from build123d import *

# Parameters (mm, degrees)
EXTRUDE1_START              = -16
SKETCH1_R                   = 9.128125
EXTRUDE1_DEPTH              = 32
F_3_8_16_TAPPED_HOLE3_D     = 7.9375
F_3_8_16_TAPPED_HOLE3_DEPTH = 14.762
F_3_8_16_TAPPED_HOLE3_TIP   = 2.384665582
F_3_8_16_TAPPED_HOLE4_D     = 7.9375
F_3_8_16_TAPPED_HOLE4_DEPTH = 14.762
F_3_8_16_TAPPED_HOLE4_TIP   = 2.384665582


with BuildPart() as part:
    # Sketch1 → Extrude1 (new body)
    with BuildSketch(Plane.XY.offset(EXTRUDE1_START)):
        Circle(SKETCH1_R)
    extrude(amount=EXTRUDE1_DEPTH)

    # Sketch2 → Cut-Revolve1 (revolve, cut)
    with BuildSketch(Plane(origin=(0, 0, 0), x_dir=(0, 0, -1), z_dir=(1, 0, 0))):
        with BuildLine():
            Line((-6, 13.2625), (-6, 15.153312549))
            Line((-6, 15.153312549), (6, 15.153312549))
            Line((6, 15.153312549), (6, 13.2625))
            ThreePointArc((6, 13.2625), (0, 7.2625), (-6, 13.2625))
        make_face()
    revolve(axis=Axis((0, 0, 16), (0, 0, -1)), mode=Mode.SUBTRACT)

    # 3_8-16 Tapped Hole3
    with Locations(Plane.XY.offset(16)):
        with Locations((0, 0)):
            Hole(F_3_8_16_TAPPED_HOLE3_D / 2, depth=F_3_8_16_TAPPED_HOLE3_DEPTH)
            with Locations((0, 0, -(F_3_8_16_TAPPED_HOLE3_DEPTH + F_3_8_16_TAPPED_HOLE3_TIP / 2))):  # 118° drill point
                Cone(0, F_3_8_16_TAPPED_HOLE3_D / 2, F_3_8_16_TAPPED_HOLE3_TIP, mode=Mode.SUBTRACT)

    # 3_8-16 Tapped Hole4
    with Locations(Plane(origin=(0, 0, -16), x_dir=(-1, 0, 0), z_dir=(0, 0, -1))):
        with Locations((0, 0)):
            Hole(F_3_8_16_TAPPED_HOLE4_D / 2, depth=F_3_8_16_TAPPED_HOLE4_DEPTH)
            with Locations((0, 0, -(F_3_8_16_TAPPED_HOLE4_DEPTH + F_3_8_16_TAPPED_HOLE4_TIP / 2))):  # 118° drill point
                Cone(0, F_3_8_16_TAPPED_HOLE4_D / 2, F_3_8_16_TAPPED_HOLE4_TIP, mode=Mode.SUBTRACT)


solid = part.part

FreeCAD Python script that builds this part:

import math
import FreeCAD as App
import Part
import Sketcher

V = App.Vector

doc = App.newDocument("Part")
body = doc.addObject("PartDesign::Body", "Body")

# Sketch on XY plane
sketch1 = doc.addObject("Sketcher::SketchObject", "Sketch")
body.addObject(sketch1)
sketch1.AttachmentSupport = (doc.XY_Plane, [""])
sketch1.MapMode = "FlatFace"
sketch1.AttachmentOffset = App.Placement(V(0, 0, -16), App.Rotation())
sketch1.addGeometry(Part.Circle(V(0, 0, 0), V(0, 0, 1), 9), False)
sketch1.addConstraint([
    Sketcher.Constraint("Coincident", 0, 3, -1, 1),
    Sketcher.Constraint("Diameter", 0, 18.25625),
])
pad1 = doc.addObject("PartDesign::Pad", "Pad")
body.addObject(pad1)
pad1.Profile = sketch1
pad1.Length = 32

# Sketch on YZ plane
sketch2 = doc.addObject("Sketcher::SketchObject", "Sketch001")
body.addObject(sketch2)
sketch2.AttachmentSupport = (doc.YZ_Plane, [""])
sketch2.MapMode = "FlatFace"
sketch2.addGeometry([
    Part.LineSegment(V(15.2, 6, 0), V(13.3, 6, 0)),
    Part.ArcOfCircle(Part.Circle(V(13.3, 0, 0), V(0, 0, 1), 6), math.radians(90), math.radians(270)),
    Part.LineSegment(V(13.3, -6, 0), V(15.2, -6, 0)),
    Part.LineSegment(V(15.2, -6, 0), V(15.2, 6, 0)),
], False)
sketch2.addConstraint([
    Sketcher.Constraint("Tangent", 0, 2, 1, 1),
    Sketcher.Constraint("Tangent", 1, 2, 2, 1),
    Sketcher.Constraint("Coincident", 2, 2, 3, 1),
    Sketcher.Constraint("Coincident", 3, 2, 0, 1),
    Sketcher.Constraint("Horizontal", 0),
    Sketcher.Constraint("Horizontal", 2),
    Sketcher.Constraint("Vertical", 3),
    Sketcher.Constraint("PointOnObject", 1, 3, -1),
    Sketcher.Constraint("Radius", 1, 6.0),
    Sketcher.Constraint("DistanceX", -1, 1, 1, 3, 13.2625),
    Sketcher.Constraint("DistanceX", 0, 2, 0, 1, 1.890813),
])
groove = doc.addObject("PartDesign::Groove", "Groove")
body.addObject(groove)
groove.Profile = sketch2
groove.ReferenceAxis = (sketch2, ["V_Axis"])
groove.Angle = 360

# Sketch on XY plane
sketch3 = doc.addObject("Sketcher::SketchObject", "Sketch002")
body.addObject(sketch3)
sketch3.AttachmentSupport = (doc.XY_Plane, [""])
sketch3.MapMode = "FlatFace"
sketch3.AttachmentOffset = App.Placement(V(0, 0, 16), App.Rotation())
sketch3.addGeometry(Part.Circle(V(0, 0, 0), V(0, 0, 1), 4), False)
sketch3.addConstraint([
    Sketcher.Constraint("Coincident", 0, 3, -1, 1),
    Sketcher.Constraint("Diameter", 0, 7.9375),
])
doc.recompute()
hole = doc.addObject("PartDesign::Hole", "Hole")
body.addObject(hole)
hole.Profile = sketch3
hole.ThreadType = "None"
hole.Diameter = 7.9375
hole.DepthType = "Dimension"
hole.Depth = 14.762
hole.DrillPoint = "Angled"
hole.DrillPointAngle = 118

# Sketch on XY plane
sketch4 = doc.addObject("Sketcher::SketchObject", "Sketch003")
body.addObject(sketch4)
sketch4.AttachmentSupport = (doc.XY_Plane, [""])
sketch4.MapMode = "FlatFace"
sketch4.AttachmentOffset = App.Placement(V(0, 0, -16), App.Rotation())
sketch4.addGeometry(Part.Circle(V(0, 0, 0), V(0, 0, 1), 4), False)
sketch4.addConstraint([
    Sketcher.Constraint("Coincident", 0, 3, -1, 1),
    Sketcher.Constraint("Diameter", 0, 7.9375),
])
doc.recompute()
hole2 = doc.addObject("PartDesign::Hole", "Hole001")
body.addObject(hole2)
hole2.Profile = sketch4
hole2.ThreadType = "None"
hole2.Diameter = 7.9375
hole2.DepthType = "Dimension"
hole2.Depth = 14.762
hole2.DrillPoint = "Angled"
hole2.DrillPointAngle = 118
hole2.Reversed = True

doc.recompute()
